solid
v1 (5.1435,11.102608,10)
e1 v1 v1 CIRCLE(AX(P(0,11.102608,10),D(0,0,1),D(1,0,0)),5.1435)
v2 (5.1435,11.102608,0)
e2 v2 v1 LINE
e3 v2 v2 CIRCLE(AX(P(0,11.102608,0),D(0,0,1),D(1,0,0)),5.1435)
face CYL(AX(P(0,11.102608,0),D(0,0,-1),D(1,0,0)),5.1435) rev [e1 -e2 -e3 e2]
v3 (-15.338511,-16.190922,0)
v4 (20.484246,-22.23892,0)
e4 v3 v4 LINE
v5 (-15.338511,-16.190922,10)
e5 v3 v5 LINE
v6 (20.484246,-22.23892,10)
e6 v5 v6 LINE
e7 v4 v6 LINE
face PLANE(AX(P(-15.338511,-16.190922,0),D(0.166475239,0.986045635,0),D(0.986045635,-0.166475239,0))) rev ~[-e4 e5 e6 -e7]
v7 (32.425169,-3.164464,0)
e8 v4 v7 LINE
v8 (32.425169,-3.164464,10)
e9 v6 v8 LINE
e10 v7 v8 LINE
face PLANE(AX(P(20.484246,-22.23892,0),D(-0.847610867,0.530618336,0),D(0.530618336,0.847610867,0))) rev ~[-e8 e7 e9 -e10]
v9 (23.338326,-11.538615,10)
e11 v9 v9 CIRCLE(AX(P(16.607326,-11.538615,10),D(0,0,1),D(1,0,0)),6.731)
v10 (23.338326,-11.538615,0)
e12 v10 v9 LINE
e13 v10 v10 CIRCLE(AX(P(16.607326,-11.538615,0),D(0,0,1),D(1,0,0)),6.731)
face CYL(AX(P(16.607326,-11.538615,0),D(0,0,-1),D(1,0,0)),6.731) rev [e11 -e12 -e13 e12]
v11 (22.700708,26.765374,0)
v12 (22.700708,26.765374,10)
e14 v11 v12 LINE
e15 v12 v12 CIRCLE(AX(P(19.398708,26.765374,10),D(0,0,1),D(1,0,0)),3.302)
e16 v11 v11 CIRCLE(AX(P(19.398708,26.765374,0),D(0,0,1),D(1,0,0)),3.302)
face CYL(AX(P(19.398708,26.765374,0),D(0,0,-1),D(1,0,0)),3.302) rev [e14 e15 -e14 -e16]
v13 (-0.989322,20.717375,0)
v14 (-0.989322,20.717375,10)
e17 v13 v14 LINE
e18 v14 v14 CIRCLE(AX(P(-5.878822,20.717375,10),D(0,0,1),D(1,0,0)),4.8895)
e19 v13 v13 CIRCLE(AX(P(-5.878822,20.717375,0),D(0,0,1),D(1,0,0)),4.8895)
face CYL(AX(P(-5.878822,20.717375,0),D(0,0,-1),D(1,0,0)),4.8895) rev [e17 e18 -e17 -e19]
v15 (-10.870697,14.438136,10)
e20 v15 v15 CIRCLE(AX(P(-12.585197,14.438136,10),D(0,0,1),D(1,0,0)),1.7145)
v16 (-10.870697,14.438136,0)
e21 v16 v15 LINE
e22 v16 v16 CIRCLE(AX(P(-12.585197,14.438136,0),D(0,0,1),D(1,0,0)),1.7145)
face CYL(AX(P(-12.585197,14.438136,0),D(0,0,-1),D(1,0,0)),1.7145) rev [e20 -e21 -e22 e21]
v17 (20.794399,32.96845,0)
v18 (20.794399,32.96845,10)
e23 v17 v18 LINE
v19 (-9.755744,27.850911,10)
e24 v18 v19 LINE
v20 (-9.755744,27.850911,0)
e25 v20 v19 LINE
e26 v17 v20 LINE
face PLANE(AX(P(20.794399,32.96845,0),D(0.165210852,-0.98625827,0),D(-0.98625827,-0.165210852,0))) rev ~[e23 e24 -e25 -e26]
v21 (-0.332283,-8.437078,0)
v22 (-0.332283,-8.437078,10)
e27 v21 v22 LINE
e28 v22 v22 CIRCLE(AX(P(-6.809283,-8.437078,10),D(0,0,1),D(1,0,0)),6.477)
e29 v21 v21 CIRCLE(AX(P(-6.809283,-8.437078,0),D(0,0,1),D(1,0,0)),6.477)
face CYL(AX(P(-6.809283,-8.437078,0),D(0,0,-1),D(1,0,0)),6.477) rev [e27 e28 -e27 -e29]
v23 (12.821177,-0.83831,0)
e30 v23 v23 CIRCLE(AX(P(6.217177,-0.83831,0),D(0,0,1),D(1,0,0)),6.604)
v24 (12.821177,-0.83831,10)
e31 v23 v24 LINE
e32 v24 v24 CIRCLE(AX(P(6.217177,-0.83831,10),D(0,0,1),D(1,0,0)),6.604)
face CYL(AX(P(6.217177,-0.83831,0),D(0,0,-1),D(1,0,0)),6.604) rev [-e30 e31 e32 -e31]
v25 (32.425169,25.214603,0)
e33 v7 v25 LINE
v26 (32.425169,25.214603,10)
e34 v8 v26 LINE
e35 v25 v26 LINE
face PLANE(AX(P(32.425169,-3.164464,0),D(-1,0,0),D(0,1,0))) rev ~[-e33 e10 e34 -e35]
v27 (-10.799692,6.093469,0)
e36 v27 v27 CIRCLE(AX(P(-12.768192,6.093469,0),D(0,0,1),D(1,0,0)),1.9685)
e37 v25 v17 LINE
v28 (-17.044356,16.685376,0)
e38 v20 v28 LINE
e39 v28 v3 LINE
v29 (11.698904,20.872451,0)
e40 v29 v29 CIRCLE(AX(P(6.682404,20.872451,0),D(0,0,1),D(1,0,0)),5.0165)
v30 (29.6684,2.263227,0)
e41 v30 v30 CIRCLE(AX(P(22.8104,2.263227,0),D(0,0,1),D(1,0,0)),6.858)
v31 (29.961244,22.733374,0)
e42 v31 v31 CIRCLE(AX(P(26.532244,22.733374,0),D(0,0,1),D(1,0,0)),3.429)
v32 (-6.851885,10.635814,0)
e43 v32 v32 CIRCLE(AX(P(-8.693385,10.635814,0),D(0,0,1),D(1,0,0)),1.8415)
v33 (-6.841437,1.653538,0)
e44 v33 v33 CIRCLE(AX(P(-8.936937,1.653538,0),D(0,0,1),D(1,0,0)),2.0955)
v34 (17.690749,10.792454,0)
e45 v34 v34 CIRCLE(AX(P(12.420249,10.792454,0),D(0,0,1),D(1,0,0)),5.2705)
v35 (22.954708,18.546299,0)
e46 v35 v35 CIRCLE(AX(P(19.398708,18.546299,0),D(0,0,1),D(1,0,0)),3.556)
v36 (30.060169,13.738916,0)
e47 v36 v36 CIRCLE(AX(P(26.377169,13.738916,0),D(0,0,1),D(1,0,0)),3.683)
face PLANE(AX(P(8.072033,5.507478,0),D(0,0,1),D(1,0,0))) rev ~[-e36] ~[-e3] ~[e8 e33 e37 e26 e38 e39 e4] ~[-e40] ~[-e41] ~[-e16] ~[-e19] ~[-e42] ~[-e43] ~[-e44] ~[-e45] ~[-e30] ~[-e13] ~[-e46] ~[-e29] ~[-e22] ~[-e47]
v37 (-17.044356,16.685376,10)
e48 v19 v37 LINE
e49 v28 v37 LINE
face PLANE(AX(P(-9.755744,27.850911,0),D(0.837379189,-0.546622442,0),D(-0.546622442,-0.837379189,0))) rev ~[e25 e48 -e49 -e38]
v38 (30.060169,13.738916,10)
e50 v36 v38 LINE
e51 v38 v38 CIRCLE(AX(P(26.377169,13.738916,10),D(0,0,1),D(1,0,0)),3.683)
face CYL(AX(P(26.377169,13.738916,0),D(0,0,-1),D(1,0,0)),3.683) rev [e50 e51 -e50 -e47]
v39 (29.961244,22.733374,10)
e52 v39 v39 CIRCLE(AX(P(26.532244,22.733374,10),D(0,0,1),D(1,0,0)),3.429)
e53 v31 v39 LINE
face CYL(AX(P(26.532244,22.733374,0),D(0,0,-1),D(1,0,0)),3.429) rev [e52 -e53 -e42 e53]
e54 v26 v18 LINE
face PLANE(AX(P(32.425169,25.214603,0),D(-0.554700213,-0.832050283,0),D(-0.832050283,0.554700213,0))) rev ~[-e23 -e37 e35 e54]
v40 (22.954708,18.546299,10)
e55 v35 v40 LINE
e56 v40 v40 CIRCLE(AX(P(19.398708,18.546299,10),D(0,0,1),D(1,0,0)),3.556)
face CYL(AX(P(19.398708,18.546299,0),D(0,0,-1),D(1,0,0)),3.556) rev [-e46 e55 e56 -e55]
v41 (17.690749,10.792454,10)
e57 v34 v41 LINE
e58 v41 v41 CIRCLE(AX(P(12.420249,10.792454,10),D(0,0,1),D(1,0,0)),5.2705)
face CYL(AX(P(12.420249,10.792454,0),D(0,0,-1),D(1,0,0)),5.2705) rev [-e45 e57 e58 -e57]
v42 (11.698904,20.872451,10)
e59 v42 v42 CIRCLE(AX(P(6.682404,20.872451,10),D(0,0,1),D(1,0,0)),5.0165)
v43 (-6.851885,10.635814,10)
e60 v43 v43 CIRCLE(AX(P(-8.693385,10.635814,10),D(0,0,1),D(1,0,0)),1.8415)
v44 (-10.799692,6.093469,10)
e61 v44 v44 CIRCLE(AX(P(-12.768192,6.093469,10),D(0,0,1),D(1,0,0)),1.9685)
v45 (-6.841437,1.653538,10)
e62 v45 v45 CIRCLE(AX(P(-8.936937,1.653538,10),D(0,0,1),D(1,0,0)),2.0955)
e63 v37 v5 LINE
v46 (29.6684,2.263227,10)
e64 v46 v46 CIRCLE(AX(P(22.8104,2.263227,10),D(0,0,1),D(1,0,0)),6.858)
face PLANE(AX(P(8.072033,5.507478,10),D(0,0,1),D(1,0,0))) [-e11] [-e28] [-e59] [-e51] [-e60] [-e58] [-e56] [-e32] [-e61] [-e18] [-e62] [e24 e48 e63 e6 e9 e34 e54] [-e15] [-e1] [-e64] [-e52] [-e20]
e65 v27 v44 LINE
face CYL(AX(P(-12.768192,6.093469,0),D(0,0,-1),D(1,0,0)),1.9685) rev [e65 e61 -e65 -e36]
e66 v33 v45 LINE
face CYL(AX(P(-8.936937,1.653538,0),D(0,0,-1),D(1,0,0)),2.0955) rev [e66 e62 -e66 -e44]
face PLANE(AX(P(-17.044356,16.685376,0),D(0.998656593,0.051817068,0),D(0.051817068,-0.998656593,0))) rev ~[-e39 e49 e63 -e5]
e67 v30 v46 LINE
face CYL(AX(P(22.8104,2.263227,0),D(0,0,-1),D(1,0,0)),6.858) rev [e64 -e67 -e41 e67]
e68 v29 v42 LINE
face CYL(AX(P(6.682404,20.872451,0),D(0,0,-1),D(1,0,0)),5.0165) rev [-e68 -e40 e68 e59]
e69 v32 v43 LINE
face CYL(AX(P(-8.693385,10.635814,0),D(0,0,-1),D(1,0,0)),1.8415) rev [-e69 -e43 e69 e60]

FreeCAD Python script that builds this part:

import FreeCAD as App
import Part
import Sketcher

V = App.Vector
Q = App.Units.Quantity

doc = App.newDocument("Part")
body = doc.addObject("PartDesign::Body", "Body")

sketch1 = doc.addObject("Sketcher::SketchObject", "Sketch")
body.addObject(sketch1)
sketch1.AttachmentSupport = (doc.XY_Plane, [""])
sketch1.MapMode = "FlatFace"
sketch1.addGeometry([
    Part.LineSegment(V(-9.755744, 27.850911, 0), V(-17.044356, 16.685376, 0)),
    Part.LineSegment(V(-17.044356, 16.685376, 0), V(-15.338511, -16.190922, 0)),
    Part.LineSegment(V(-15.338511, -16.190922, 0), V(20.484246, -22.23892, 0)),
    Part.LineSegment(V(20.484246, -22.23892, 0), V(32.425169, -3.164464, 0)),
    Part.LineSegment(V(32.425169, -3.164464, 0), V(32.425169, 25.214603, 0)),
    Part.LineSegment(V(32.425169, 25.214603, 0), V(20.794399, 32.96845, 0)),
    Part.LineSegment(V(20.794399, 32.96845, 0), V(-9.755744, 27.850911, 0)),
    Part.Circle(V(-6.809283, -8.437078, 0), V(0, 0, 1), 6.477),
    Part.Circle(V(-8.936937, 1.653538, 0), V(0, 0, 1), 2.0955),
    Part.Circle(V(6.217177, -0.83831, 0), V(0, 0, 1), 6.604),
    Part.Circle(V(16.607326, -11.538615, 0), V(0, 0, 1), 6.731),
    Part.Circle(V(22.8104, 2.263227, 0), V(0, 0, 1), 6.858),
    Part.Circle(V(-12.768192, 6.093469, 0), V(0, 0, 1), 1.9685),
    Part.Circle(V(-8.693385, 10.635814, 0), V(0, 0, 1), 1.8415),
    Part.Circle(V(-12.585197, 14.438136, 0), V(0, 0, 1), 1.7145),
    Part.Circle(V(0, 11.102608, 0), V(0, 0, 1), 5.1435),
    Part.Circle(V(-5.878822, 20.717375, 0), V(0, 0, 1), 4.8895),
    Part.Circle(V(6.682404, 20.872451, 0), V(0, 0, 1), 5.0165),
    Part.Circle(V(12.420249, 10.792454, 0), V(0, 0, 1), 5.2705),
    Part.Circle(V(26.377169, 13.738916, 0), V(0, 0, 1), 3.683),
    Part.Circle(V(19.398708, 18.546299, 0), V(0, 0, 1), 3.556),
    Part.Circle(V(26.532244, 22.733374, 0), V(0, 0, 1), 3.429),
    Part.Circle(V(19.398708, 26.765374, 0), V(0, 0, 1), 3.302),
], False)
sketch1.addConstraint([
    Sketcher.Constraint("Coincident", 0, 2, 1, 1),
    Sketcher.Constraint("Coincident", 1, 2, 2, 1),
    Sketcher.Constraint("Coincident", 2, 2, 3, 1),
    Sketcher.Constraint("Coincident", 3, 2, 4, 1),
    Sketcher.Constraint("Coincident", 4, 2, 5, 1),
    Sketcher.Constraint("Coincident", 5, 2, 6, 1),
    Sketcher.Constraint("Coincident", 6, 2, 0, 1),
    Sketcher.Constraint("Vertical", 4),
    Sketcher.Constraint("PointOnObject", 15, 3, -2),
    Sketcher.Constraint("Vertical", 20, 3, 22, 3),
    Sketcher.Constraint("Diameter", 7, Q("0.51 in")),
    Sketcher.Constraint("Diameter", 9, Q("0.52 in")),
    Sketcher.Constraint("Diameter", 10, Q("0.53 in")),
    Sketcher.Constraint("Diameter", 11, Q("0.54 in")),
    Sketcher.Constraint("Diameter", 19, Q("0.29 in")),
    Sketcher.Constraint("Diameter", 20, Q("0.28 in")),
    Sketcher.Constraint("Diameter", 21, Q("0.27 in")),
    Sketcher.Constraint("Diameter", 22, Q("0.26 in")),
    Sketcher.Constraint("Diameter", 8, Q("0.165 in")),
    Sketcher.Constraint("Diameter", 12, Q("0.155 in")),
    Sketcher.Constraint("Diameter", 13, Q("0.145 in")),
    Sketcher.Constraint("Diameter", 14, Q("0.135 in")),
    Sketcher.Constraint("Diameter", 15, Q("0.405 in")),
    Sketcher.Constraint("Diameter", 16, Q("0.385 in")),
    Sketcher.Constraint("Diameter", 17, Q("0.395 in")),
    Sketcher.Constraint("Diameter", 18, Q("0.415 in")),
    Sketcher.Constraint("DistanceY", -1, 1, 8, 3, Q("0.0650999 in")),
    Sketcher.Constraint("DistanceX", -1, 1, 11, 3, Q("22.8104 mm")),
    Sketcher.Constraint("DistanceY", -1, 1, 20, 3, Q("18.546299 mm")),
    Sketcher.Constraint("DistanceX", -1, 1, 5, 2, Q("20.794399 mm")),
    Sketcher.Constraint("DistanceX", 13, 3, 7, 3, Q("1.884102 mm")),
    Sketcher.Constraint("DistanceY", 8, 3, 14, 3, Q("12.784598 mm")),
    Sketcher.Constraint("DistanceX", 14, 3, 17, 3, Q("19.267601 mm")),
    Sketcher.Constraint("DistanceY", 21, 3, 22, 3, Q("4.032 mm")),
    Sketcher.Constraint("DistanceY", 0, 2, 16, 3, Q("4.031999 mm")),
    Sketcher.Constraint("DistanceX", 19, 3, 3, 2, Q("6.048 mm")),
    Sketcher.Constraint("DistanceY", 17, 3, 5, 2, Q("12.095999 mm")),
    Sketcher.Constraint("Distance", 3, Q("22.503789 mm")),
    Sketcher.Constraint("DistanceY", 4, 1, 4, 2, Q("28.379067 mm")),
    Sketcher.Constraint("DistanceY", 9, 3, -1, 1, Q("0.83831 mm")),
    Sketcher.Constraint("DistanceY", -1, 1, 12, 3, Q("6.093469 mm")),
    Sketcher.Constraint("DistanceY", -1, 1, 17, 3, Q("20.872451 mm")),
    Sketcher.Constraint("DistanceX", -1, 1, 18, 3, Q("12.420249 mm")),
    Sketcher.Constraint("DistanceX", -1, 1, 19, 3, Q("26.377169 mm")),
    Sketcher.Constraint("DistanceX", 1, 2, -1, 1, Q("15.338511 mm")),
    Sketcher.Constraint("DistanceY", 2, 2, -1, 1, Q("22.23892 mm")),
    Sketcher.Constraint("DistanceY", -1, 1, 6, 2, Q("27.850911 mm")),
    Sketcher.Constraint("DistanceX", 7, 3, 9, 3, Q("13.02646 mm")),
    Sketcher.Constraint("DistanceX", 9, 3, 10, 3, Q("10.390149 mm")),
    Sketcher.Constraint("DistanceY", 8, 3, 11, 3, Q("0.609689 mm")),
    Sketcher.Constraint("DistanceX", 12, 3, 7, 3, Q("5.958909 mm")),
    Sketcher.Constraint("DistanceY", 7, 3, 13, 3, Q("19.072892 mm")),
    Sketcher.Constraint("DistanceX", 14, 3, 8, 3, Q("3.64826 mm")),
    Sketcher.Constraint("DistanceY", 8, 3, 15, 3, Q("9.44907 mm")),
    Sketcher.Constraint("DistanceY", 14, 3, 16, 3, Q("6.279239 mm")),
    Sketcher.Constraint("DistanceY", 13, 3, 16, 3, Q("10.081561 mm")),
    Sketcher.Constraint("DistanceX", 12, 3, 16, 3, Q("6.88937 mm")),
    Sketcher.Constraint("DistanceX", 13, 3, 17, 3, Q("15.375789 mm")),
    Sketcher.Constraint("DistanceX", 9, 3, 18, 3, Q("6.203072 mm")),
    Sketcher.Constraint("DistanceY", 18, 3, 16, 3, Q("9.924921 mm")),
    Sketcher.Constraint("DistanceY", 11, 3, 19, 3, Q("11.475689 mm")),
    Sketcher.Constraint("DistanceX", 20, 3, 19, 3, Q("6.978461 mm")),
    Sketcher.Constraint("DistanceY", 19, 3, 21, 3, Q("8.994458 mm")),
    Sketcher.Constraint("DistanceX", 17, 3, 21, 3, Q("19.84984 mm")),
    Sketcher.Constraint("DistanceX", 0, 2, 14, 3, Q("4.459159 mm")),
    Sketcher.Constraint("DistanceY", 1, 2, 8, 3, Q("17.84446 mm")),
    Sketcher.Constraint("DistanceX", 10, 3, 2, 2, Q("3.87692 mm")),
    Sketcher.Constraint("DistanceY", 10, 3, 3, 2, Q("8.374151 mm")),
    Sketcher.Constraint("DistanceX", 6, 2, 16, 3, Q("3.876922 mm")),
])
pad1 = doc.addObject("PartDesign::Pad", "Pad")
body.addObject(pad1)
pad1.Profile = sketch1
pad1.Length = 10

doc.recompute()
